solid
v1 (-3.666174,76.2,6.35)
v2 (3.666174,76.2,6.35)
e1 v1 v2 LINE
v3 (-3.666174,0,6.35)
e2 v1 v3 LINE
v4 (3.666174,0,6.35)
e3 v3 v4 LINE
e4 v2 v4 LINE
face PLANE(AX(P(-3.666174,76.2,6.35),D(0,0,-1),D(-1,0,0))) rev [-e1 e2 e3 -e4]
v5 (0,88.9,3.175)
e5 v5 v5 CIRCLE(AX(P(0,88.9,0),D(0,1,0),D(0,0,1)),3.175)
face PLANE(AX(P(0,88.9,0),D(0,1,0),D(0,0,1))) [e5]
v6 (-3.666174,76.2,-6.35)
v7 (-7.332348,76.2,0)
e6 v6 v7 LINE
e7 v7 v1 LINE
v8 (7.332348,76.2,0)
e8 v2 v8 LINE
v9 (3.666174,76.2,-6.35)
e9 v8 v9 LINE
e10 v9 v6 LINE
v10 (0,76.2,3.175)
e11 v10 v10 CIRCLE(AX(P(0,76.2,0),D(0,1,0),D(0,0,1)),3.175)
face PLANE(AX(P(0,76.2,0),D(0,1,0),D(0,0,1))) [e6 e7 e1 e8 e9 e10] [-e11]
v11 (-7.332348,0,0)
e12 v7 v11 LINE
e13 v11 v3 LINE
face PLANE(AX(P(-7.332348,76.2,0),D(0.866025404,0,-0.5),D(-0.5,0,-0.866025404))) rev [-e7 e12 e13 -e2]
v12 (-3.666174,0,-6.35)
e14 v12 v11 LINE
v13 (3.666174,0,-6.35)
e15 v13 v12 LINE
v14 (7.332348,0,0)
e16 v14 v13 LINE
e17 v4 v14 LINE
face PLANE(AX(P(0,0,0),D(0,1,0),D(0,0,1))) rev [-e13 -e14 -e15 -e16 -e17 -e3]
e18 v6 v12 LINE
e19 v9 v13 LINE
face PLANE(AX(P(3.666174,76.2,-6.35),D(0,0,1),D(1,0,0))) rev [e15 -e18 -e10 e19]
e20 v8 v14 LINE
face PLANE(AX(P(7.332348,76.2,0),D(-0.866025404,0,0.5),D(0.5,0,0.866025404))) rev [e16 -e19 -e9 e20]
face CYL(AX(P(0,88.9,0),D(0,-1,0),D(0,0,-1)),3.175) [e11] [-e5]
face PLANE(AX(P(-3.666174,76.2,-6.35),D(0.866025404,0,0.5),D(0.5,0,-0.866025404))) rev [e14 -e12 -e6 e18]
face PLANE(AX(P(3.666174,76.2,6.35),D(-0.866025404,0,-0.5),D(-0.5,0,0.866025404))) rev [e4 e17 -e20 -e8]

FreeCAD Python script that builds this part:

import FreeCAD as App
import Part
import Sketcher

V = App.Vector
Q = App.Units.Quantity


def add_polygon(sketch, points):
    """Adds a closed chain of lines whose ends are joined by coincident constraints."""
    first, n = sketch.GeometryCount, len(points)
    for a, b in zip(points, points[1:] + points[:1]):
        sketch.addGeometry(Part.LineSegment(App.Vector(*a, 0), App.Vector(*b, 0)), False)
    for i in range(n):
        sketch.addConstraint(Sketcher.Constraint("Coincident", first + i, 2, first + (i + 1) % n, 1))

doc = App.newDocument("Part")
body = doc.addObject("PartDesign::Body", "Body")

# Sketch on XZ plane
sketch1 = body.newObject("Sketcher::SketchObject", "Sketch")
sketch1.AttachmentSupport = (doc.getObject("XZ_Plane"), [""])
sketch1.MapMode = "FlatFace"
add_polygon(sketch1, [(4, 6), (7, 0), (4, -6), (-4, -6), (-7, 0), (-4, 6)])  # lines 0-5
sketch1.addConstraint([
    Sketcher.Constraint("Horizontal", 2),
    Sketcher.Constraint("Horizontal", 5),
    Sketcher.Constraint("Symmetric", 0, 2, 3, 2, -1, 1),
    Sketcher.Constraint("Symmetric", 1, 2, 4, 2, -1, 1),
    Sketcher.Constraint("PointOnObject", 0, 2, -1),
    Sketcher.Constraint("Parallel", 0, 3),
    Sketcher.Constraint("Vertical", 2, 2, 4, 2),
    Sketcher.Constraint("Angle", 0, Q("-60 deg")),
    Sketcher.Constraint("DistanceY", 2, 2, 4, 2, Q("0.5 in")),
    Sketcher.Constraint("DistanceX", 2, 2, 2, 1, 7.332348),
])
pad1 = body.newObject("PartDesign::Pad", "Pad")
pad1.Profile = sketch1
pad1.Length = Q("3 in")
pad1.Reversed = True

# Sketch on XZ plane
sketch2 = body.newObject("Sketcher::SketchObject", "Sketch001")
sketch2.AttachmentSupport = (doc.getObject("XZ_Plane"), [""])
sketch2.MapMode = "FlatFace"
sketch2.AttachmentOffset = App.Placement(V(0, 0, -3 * 25.4), App.Rotation())
sketch2.addGeometry(Part.Circle(V(0, 0, 0), V(0, 0, 1), 3.2), False)
sketch2.addConstraint([
    Sketcher.Constraint("Coincident", 0, 3, -1, 1),
    Sketcher.Constraint("Diameter", 0, Q("0.25 in")),
])
pad2 = body.newObject("PartDesign::Pad", "Pad001")
pad2.Profile = sketch2
pad2.Length = Q("0.5 in")
pad2.Reversed = True

doc.recompute()
